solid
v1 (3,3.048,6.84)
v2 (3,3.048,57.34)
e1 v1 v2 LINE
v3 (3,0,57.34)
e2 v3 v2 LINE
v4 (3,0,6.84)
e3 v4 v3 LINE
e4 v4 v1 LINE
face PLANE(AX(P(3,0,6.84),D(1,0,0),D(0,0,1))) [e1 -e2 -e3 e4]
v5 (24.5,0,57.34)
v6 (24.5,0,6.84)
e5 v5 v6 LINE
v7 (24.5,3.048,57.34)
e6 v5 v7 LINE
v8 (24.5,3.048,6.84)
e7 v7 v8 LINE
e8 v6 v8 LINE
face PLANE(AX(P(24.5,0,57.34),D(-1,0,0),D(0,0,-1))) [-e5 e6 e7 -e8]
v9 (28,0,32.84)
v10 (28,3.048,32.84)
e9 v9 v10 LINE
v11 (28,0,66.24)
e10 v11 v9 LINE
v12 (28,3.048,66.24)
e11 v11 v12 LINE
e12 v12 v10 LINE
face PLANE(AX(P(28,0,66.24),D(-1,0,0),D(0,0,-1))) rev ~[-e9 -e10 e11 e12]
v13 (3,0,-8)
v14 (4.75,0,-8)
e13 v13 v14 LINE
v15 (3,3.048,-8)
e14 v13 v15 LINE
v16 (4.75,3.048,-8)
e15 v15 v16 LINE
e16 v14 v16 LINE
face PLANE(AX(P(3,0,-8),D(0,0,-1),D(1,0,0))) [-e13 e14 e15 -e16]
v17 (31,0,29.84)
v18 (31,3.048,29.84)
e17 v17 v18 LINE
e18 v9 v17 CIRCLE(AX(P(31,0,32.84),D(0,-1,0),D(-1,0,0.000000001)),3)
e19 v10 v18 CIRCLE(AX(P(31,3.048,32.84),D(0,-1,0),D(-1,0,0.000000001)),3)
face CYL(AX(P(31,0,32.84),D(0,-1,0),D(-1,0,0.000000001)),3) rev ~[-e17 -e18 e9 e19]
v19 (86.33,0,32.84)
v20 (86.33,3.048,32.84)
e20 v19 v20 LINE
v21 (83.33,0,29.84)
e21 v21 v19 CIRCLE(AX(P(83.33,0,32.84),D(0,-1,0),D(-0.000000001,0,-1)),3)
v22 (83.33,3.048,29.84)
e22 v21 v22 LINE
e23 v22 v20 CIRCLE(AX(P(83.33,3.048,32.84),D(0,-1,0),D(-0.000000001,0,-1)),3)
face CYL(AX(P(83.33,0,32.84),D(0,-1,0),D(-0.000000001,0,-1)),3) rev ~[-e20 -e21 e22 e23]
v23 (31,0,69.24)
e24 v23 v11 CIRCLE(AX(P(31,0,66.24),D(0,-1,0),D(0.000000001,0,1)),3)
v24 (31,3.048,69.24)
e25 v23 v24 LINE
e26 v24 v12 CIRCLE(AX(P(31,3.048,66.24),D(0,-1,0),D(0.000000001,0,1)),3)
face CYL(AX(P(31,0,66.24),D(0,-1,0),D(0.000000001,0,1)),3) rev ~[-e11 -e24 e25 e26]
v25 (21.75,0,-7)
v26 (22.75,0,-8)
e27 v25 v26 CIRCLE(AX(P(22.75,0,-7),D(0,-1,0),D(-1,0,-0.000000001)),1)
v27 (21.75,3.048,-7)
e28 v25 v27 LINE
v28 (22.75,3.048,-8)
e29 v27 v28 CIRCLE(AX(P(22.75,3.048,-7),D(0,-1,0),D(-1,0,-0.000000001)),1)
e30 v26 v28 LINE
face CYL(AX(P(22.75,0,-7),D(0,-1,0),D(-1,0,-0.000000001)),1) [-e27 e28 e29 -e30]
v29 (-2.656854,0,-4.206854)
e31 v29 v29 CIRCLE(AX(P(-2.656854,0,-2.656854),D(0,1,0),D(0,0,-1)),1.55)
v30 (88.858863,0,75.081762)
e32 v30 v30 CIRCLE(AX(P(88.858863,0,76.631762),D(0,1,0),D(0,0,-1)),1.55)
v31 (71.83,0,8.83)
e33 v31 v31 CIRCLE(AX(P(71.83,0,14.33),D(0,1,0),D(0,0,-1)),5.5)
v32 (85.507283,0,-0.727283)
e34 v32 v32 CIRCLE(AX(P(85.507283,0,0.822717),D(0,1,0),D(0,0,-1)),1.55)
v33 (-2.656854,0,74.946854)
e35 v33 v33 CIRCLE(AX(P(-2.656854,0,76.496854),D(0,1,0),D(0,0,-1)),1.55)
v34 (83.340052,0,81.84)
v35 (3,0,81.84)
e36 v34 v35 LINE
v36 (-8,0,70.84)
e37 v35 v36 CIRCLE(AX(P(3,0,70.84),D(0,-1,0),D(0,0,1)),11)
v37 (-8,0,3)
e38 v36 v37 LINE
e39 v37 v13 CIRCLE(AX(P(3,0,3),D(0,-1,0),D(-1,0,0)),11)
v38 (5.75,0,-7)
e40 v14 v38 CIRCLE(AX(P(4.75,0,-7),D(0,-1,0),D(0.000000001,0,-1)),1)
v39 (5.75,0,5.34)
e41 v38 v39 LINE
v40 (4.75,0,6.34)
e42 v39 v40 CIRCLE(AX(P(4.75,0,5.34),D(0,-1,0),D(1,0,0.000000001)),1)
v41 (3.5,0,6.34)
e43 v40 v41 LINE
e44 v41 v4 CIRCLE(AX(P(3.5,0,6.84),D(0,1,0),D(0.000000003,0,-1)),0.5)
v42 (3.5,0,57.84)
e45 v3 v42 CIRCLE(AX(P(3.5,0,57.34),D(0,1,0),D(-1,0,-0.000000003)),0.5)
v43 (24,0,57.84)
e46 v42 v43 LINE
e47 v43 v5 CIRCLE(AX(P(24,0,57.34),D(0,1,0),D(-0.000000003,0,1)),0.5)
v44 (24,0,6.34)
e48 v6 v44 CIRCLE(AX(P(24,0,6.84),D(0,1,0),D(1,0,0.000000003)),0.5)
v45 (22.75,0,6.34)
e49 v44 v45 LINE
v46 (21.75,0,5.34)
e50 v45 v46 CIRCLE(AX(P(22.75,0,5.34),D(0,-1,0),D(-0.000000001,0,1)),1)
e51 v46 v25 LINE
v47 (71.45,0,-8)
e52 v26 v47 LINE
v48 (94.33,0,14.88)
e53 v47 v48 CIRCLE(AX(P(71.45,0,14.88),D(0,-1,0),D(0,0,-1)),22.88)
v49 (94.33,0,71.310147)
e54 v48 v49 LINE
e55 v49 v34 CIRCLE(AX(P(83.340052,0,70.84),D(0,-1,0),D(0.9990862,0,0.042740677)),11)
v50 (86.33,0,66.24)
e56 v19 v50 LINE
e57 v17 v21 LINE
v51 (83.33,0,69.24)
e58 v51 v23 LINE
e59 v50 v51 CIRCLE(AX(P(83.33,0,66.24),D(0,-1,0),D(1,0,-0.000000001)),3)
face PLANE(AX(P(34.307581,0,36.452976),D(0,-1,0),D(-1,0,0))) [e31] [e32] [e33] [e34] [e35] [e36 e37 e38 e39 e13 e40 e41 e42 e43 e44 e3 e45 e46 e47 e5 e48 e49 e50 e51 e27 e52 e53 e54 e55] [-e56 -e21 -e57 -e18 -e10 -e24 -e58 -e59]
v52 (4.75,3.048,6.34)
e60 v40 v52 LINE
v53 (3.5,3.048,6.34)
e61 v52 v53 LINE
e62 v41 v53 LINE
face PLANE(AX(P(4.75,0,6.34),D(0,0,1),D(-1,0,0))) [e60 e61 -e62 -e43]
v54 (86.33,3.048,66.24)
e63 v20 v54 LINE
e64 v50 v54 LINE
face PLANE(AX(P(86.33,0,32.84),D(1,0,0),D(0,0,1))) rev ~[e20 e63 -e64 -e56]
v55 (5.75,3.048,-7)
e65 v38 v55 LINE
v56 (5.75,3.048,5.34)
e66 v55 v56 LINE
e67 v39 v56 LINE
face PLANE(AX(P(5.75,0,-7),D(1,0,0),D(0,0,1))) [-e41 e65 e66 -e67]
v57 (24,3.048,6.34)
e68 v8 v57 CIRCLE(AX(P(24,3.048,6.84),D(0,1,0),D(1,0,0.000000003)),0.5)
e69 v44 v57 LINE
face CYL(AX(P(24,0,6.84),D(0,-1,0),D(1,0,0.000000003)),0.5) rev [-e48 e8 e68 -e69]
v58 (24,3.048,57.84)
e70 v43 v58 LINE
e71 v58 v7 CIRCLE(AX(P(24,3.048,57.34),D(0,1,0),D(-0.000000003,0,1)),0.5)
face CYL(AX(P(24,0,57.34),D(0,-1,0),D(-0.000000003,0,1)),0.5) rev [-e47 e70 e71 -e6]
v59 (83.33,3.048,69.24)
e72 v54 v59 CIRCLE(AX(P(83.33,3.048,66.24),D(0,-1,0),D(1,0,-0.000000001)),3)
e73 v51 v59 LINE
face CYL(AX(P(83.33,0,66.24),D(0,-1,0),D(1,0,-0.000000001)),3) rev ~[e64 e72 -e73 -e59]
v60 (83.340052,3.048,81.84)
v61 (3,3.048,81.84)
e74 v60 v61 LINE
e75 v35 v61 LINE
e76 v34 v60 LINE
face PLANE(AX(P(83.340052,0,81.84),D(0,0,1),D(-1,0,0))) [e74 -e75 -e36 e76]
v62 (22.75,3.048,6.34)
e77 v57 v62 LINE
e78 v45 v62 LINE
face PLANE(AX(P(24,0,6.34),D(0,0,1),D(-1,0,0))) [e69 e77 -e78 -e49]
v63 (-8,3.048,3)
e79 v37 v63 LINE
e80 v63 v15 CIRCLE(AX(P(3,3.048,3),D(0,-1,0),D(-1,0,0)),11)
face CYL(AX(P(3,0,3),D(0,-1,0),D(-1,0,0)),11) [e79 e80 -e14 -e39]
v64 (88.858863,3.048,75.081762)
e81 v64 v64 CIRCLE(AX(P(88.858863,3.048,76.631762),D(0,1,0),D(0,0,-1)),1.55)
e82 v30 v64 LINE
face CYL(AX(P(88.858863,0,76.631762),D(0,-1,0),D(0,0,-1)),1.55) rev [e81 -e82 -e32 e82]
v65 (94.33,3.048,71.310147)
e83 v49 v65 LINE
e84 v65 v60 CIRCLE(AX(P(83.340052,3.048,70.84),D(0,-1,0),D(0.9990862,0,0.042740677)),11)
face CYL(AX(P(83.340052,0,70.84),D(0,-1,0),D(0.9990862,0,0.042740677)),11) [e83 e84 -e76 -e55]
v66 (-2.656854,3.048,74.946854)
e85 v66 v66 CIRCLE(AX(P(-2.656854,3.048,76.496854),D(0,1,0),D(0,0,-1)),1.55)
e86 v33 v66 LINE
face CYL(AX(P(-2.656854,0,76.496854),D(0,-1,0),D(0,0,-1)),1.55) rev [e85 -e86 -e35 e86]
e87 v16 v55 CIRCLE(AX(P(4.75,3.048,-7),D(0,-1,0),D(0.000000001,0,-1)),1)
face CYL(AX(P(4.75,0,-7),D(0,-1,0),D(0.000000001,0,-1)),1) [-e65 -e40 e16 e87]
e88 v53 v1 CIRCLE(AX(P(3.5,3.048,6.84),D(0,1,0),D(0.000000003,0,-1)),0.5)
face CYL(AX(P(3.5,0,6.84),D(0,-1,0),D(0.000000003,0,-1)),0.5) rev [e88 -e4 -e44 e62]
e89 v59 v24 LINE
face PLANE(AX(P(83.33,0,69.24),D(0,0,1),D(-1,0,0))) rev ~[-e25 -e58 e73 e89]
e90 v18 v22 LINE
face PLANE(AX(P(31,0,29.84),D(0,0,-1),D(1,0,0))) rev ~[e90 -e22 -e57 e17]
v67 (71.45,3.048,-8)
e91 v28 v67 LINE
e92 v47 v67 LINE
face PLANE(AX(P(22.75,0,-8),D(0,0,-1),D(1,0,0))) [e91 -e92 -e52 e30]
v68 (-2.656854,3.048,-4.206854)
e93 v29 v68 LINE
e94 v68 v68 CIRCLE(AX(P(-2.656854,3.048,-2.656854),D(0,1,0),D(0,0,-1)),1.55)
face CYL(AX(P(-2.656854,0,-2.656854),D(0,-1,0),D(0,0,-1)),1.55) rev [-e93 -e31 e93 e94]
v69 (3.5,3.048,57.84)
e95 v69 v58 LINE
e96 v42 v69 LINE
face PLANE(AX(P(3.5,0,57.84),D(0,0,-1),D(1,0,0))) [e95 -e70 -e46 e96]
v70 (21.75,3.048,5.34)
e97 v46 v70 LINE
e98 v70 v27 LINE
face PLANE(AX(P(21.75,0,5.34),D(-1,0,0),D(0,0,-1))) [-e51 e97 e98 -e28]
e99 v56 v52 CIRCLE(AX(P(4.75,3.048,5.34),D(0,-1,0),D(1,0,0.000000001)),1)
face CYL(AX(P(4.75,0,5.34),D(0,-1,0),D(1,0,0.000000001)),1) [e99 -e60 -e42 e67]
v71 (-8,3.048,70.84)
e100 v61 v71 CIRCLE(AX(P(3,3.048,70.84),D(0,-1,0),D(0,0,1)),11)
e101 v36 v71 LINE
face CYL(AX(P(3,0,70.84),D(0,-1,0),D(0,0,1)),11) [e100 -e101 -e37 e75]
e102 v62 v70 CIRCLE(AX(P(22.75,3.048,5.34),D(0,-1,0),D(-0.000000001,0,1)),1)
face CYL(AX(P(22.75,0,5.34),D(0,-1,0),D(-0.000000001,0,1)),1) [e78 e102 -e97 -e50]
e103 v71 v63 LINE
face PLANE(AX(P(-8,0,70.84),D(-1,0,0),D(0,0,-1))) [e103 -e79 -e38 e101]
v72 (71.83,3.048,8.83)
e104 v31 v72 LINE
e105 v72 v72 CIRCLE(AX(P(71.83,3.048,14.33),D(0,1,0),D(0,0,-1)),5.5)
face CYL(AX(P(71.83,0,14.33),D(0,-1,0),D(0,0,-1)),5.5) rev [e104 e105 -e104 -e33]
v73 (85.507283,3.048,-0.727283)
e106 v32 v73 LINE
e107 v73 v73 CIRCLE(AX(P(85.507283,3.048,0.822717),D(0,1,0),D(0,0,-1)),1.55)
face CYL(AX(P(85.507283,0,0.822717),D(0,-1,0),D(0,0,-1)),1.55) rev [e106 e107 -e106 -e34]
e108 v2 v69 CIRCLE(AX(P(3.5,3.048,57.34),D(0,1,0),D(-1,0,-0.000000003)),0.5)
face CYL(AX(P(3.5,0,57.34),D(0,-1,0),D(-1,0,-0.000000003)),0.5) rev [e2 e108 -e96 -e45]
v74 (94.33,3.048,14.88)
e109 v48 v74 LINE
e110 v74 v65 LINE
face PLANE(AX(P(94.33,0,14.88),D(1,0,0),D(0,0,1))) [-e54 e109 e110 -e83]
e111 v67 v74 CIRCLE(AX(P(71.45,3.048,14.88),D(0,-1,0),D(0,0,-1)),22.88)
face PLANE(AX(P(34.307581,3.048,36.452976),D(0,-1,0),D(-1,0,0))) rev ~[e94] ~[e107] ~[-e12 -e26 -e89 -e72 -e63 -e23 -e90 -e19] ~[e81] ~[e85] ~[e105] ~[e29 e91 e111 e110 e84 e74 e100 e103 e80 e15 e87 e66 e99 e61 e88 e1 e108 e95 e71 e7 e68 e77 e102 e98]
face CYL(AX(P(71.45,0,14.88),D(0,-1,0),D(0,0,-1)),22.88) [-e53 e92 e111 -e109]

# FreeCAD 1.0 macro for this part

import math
import FreeCAD as App
import Part
import Sketcher
Q = App.Units.Quantity

doc = App.newDocument("Part")
body = doc.addObject("PartDesign::Body", "Body")

# Sketch on XZ plane
sketch1 = doc.addObject("Sketcher::SketchObject", "Sketch")
body.addObject(sketch1)
sketch1.AttachmentSupport = (doc.XZ_Plane, [""])
sketch1.MapMode = "FlatFace"
sketch1.addGeometry(Part.LineSegment(App.Vector(3, 57.34, 0), App.Vector(3, 6.84, 0)), False)
sketch1.addGeometry(Part.ArcOfCircle(Part.Circle(App.Vector(3.5, 6.84, 0), App.Vector(0, 0, 1), 0.5), math.radians(180), math.radians(270)), False)
sketch1.addGeometry(Part.LineSegment(App.Vector(3.5, 6.34, 0), App.Vector(4.75, 6.34, 0)), False)
sketch1.addGeometry(Part.ArcOfCircle(Part.Circle(App.Vector(4.75, 5.34, 0), App.Vector(0, 0, 1), 1), math.radians(0), math.radians(90)), False)
sketch1.addGeometry(Part.LineSegment(App.Vector(5.75, 5.34, 0), App.Vector(5.75, -7, 0)), False)
sketch1.addGeometry(Part.ArcOfCircle(Part.Circle(App.Vector(4.75, -7, 0), App.Vector(0, 0, 1), 1), math.radians(-90), math.radians(0)), False)
sketch1.addGeometry(Part.LineSegment(App.Vector(4.75, -8, 0), App.Vector(3, -8, 0)), False)
sketch1.addGeometry(Part.ArcOfCircle(Part.Circle(App.Vector(3, 3, 0), App.Vector(0, 0, 1), 11), math.radians(180), math.radians(270)), False)
sketch1.addGeometry(Part.LineSegment(App.Vector(-8, 3, 0), App.Vector(-8, 70.84, 0)), False)
sketch1.addGeometry(Part.ArcOfCircle(Part.Circle(App.Vector(3, 70.84, 0), App.Vector(0, 0, 1), 11), math.radians(90), math.radians(180)), False)
sketch1.addGeometry(Part.LineSegment(App.Vector(3, 81.84, 0), App.Vector(83.340052, 81.84, 0)), False)
sketch1.addGeometry(Part.ArcOfCircle(Part.Circle(App.Vector(83.340052, 70.84, 0), App.Vector(0, 0, 1), 11), math.radians(2.449607), math.radians(90)), False)
sketch1.addGeometry(Part.LineSegment(App.Vector(94.33, 71.310147, 0), App.Vector(94.33, 14.88, 0)), False)
sketch1.addGeometry(Part.ArcOfCircle(Part.Circle(App.Vector(71.45, 14.88, 0), App.Vector(0, 0, 1), 22.88), math.radians(-90), math.radians(0)), False)
sketch1.addGeometry(Part.LineSegment(App.Vector(71.45, -8, 0), App.Vector(22.75, -8, 0)), False)
sketch1.addGeometry(Part.ArcOfCircle(Part.Circle(App.Vector(22.75, -7, 0), App.Vector(0, 0, 1), 1), math.radians(-180), math.radians(-90)), False)
sketch1.addGeometry(Part.LineSegment(App.Vector(21.75, -7, 0), App.Vector(21.75, 5.34, 0)), False)
sketch1.addGeometry(Part.ArcOfCircle(Part.Circle(App.Vector(22.75, 5.34, 0), App.Vector(0, 0, 1), 1), math.radians(90), math.radians(180)), False)
sketch1.addGeometry(Part.LineSegment(App.Vector(22.75, 6.34, 0), App.Vector(24, 6.34, 0)), False)
sketch1.addGeometry(Part.ArcOfCircle(Part.Circle(App.Vector(24, 6.84, 0), App.Vector(0, 0, 1), 0.5), math.radians(-90), math.radians(0)), False)
sketch1.addGeometry(Part.LineSegment(App.Vector(24.5, 6.84, 0), App.Vector(24.5, 57.34, 0)), False)
sketch1.addGeometry(Part.ArcOfCircle(Part.Circle(App.Vector(24, 57.34, 0), App.Vector(0, 0, 1), 0.5), math.radians(0), math.radians(90)), False)
sketch1.addGeometry(Part.LineSegment(App.Vector(24, 57.84, 0), App.Vector(3.5, 57.84, 0)), False)
sketch1.addGeometry(Part.ArcOfCircle(Part.Circle(App.Vector(3.5, 57.34, 0), App.Vector(0, 0, 1), 0.5), math.radians(90), math.radians(180)), False)
sketch1.addGeometry(Part.Circle(App.Vector(88.858863, 76.631762, 0), App.Vector(0, 0, 1), 1.55), False)
sketch1.addGeometry(Part.LineSegment(App.Vector(28, 66.24, 0), App.Vector(28, 32.84, 0)), False)
sketch1.addGeometry(Part.ArcOfCircle(Part.Circle(App.Vector(31, 32.84, 0), App.Vector(0, 0, 1), 3), math.radians(180), math.radians(270)), False)
sketch1.addGeometry(Part.LineSegment(App.Vector(31, 29.84, 0), App.Vector(83.33, 29.84, 0)), False)
sketch1.addGeometry(Part.ArcOfCircle(Part.Circle(App.Vector(83.33, 32.84, 0), App.Vector(0, 0, 1), 3), math.radians(-90), math.radians(0)), False)
sketch1.addGeometry(Part.LineSegment(App.Vector(86.33, 32.84, 0), App.Vector(86.33, 66.24, 0)), False)
sketch1.addGeometry(Part.ArcOfCircle(Part.Circle(App.Vector(83.33, 66.24, 0), App.Vector(0, 0, 1), 3), math.radians(0), math.radians(90)), False)
sketch1.addGeometry(Part.LineSegment(App.Vector(83.33, 69.24, 0), App.Vector(31, 69.24, 0)), False)
sketch1.addGeometry(Part.ArcOfCircle(Part.Circle(App.Vector(31, 66.24, 0), App.Vector(0, 0, 1), 3), math.radians(90), math.radians(180)), False)
sketch1.addGeometry(Part.Circle(App.Vector(-2.656854, 76.496854, 0), App.Vector(0, 0, 1), 1.55), False)
sketch1.addGeometry(Part.Circle(App.Vector(71.83, 14.33, 0), App.Vector(0, 0, 1), 5.5), False)
sketch1.addGeometry(Part.Circle(App.Vector(85.507283, 0.822717, 0), App.Vector(0, 0, 1), 1.55), False)
sketch1.addGeometry(Part.Circle(App.Vector(-2.656854, -2.656854, 0), App.Vector(0, 0, 1), 1.55), False)
sketch1.addConstraint(Sketcher.Constraint("Tangent", 0, 2, 1, 1))
sketch1.addConstraint(Sketcher.Constraint("Tangent", 1, 2, 2, 1))
sketch1.addConstraint(Sketcher.Constraint("Tangent", 2, 2, 3, 2))
sketch1.addConstraint(Sketcher.Constraint("Tangent", 3, 1, 4, 1))
sketch1.addConstraint(Sketcher.Constraint("Tangent", 4, 2, 5, 2))
sketch1.addConstraint(Sketcher.Constraint("Tangent", 5, 1, 6, 1))
sketch1.addConstraint(Sketcher.Constraint("Tangent", 6, 2, 7, 2))
sketch1.addConstraint(Sketcher.Constraint("Tangent", 7, 1, 8, 1))
sketch1.addConstraint(Sketcher.Constraint("Tangent", 8, 2, 9, 2))
sketch1.addConstraint(Sketcher.Constraint("Tangent", 9, 1, 10, 1))
sketch1.addConstraint(Sketcher.Constraint("Tangent", 10, 2, 11, 2))
sketch1.addConstraint(Sketcher.Constraint("Coincident", 11, 1, 12, 1))
sketch1.addConstraint(Sketcher.Constraint("Tangent", 12, 2, 13, 2))
sketch1.addConstraint(Sketcher.Constraint("Tangent", 13, 1, 14, 1))
sketch1.addConstraint(Sketcher.Constraint("Tangent", 14, 2, 15, 2))
sketch1.addConstraint(Sketcher.Constraint("Tangent", 15, 1, 16, 1))
sketch1.addConstraint(Sketcher.Constraint("Tangent", 16, 2, 17, 2))
sketch1.addConstraint(Sketcher.Constraint("Tangent", 17, 1, 18, 1))
sketch1.addConstraint(Sketcher.Constraint("Tangent", 18, 2, 19, 1))
sketch1.addConstraint(Sketcher.Constraint("Tangent", 19, 2, 20, 1))
sketch1.addConstraint(Sketcher.Constraint("Tangent", 20, 2, 21, 1))
sketch1.addConstraint(Sketcher.Constraint("Tangent", 21, 2, 22, 1))
sketch1.addConstraint(Sketcher.Constraint("Tangent", 22, 2, 23, 1))
sketch1.addConstraint(Sketcher.Constraint("Tangent", 23, 2, 0, 1))
sketch1.addConstraint(Sketcher.Constraint("Tangent", 25, 2, 26, 1))
sketch1.addConstraint(Sketcher.Constraint("Tangent", 26, 2, 27, 1))
sketch1.addConstraint(Sketcher.Constraint("Tangent", 27, 2, 28, 1))
sketch1.addConstraint(Sketcher.Constraint("Tangent", 28, 2, 29, 1))
sketch1.addConstraint(Sketcher.Constraint("Tangent", 29, 2, 30, 1))
sketch1.addConstraint(Sketcher.Constraint("Tangent", 30, 2, 31, 1))
sketch1.addConstraint(Sketcher.Constraint("Tangent", 31, 2, 32, 1))
sketch1.addConstraint(Sketcher.Constraint("Tangent", 32, 2, 25, 1))
sketch1.addConstraint(Sketcher.Constraint("Vertical", 0))
sketch1.addConstraint(Sketcher.Constraint("Horizontal", 2))
sketch1.addConstraint(Sketcher.Constraint("Vertical", 4))
sketch1.addConstraint(Sketcher.Constraint("Horizontal", 6))
sketch1.addConstraint(Sketcher.Constraint("Vertical", 8))
sketch1.addConstraint(Sketcher.Constraint("Horizontal", 10))
sketch1.addConstraint(Sketcher.Constraint("Vertical", 12))
sketch1.addConstraint(Sketcher.Constraint("Horizontal", 14))
sketch1.addConstraint(Sketcher.Constraint("Vertical", 16))
sketch1.addConstraint(Sketcher.Constraint("Horizontal", 18))
sketch1.addConstraint(Sketcher.Constraint("Vertical", 20))
sketch1.addConstraint(Sketcher.Constraint("Horizontal", 22))
sketch1.addConstraint(Sketcher.Constraint("Vertical", 25))
sketch1.addConstraint(Sketcher.Constraint("Horizontal", 27))
sketch1.addConstraint(Sketcher.Constraint("Vertical", 29))
sketch1.addConstraint(Sketcher.Constraint("Horizontal", 31))
sketch1.addConstraint(Sketcher.Constraint("Equal", 3, 5))
sketch1.addConstraint(Sketcher.Constraint("Equal", 7, 9))
sketch1.addConstraint(Sketcher.Constraint("Equal", 9, 11))
sketch1.addConstraint(Sketcher.Constraint("Equal", 5, 15))
sketch1.addConstraint(Sketcher.Constraint("Equal", 15, 17))
sketch1.addConstraint(Sketcher.Constraint("Equal", 1, 19))
sketch1.addConstraint(Sketcher.Constraint("Equal", 19, 21))
sketch1.addConstraint(Sketcher.Constraint("Equal", 21, 23))
sketch1.addConstraint(Sketcher.Constraint("Equal", 26, 28))
sketch1.addConstraint(Sketcher.Constraint("Equal", 28, 30))
sketch1.addConstraint(Sketcher.Constraint("Equal", 30, 32))
sketch1.addConstraint(Sketcher.Constraint("Equal", 24, 33))
sketch1.addConstraint(Sketcher.Constraint("Equal", 33, 35))
sketch1.addConstraint(Sketcher.Constraint("Equal", 35, 36))
sketch1.addConstraint(Sketcher.Constraint("Horizontal", 5, 3, 15, 3))
sketch1.addConstraint(Sketcher.Constraint("Horizontal", 3, 3, 17, 3))
sketch1.addConstraint(Sketcher.Constraint("Vertical", 33, 3, 36, 3))
sketch1.addConstraint(Sketcher.Constraint("Vertical", 9, 3, 0, 2))
sketch1.addConstraint(Sketcher.Constraint("Equal", 2, 18))
sketch1.addConstraint(Sketcher.Constraint("Diameter", 34, Q("11 mm")))
sketch1.addConstraint(Sketcher.Constraint("Radius", 3, Q("1 mm")))
sketch1.addConstraint(Sketcher.Constraint("Radius", 7, Q("11 mm")))
sketch1.addConstraint(Sketcher.Constraint("Radius", 26, Q("3 mm")))
sketch1.addConstraint(Sketcher.Constraint("Diameter", 24, Q("3.1 mm")))
sketch1.addConstraint(Sketcher.Constraint("Radius", 1, Q("0.5 mm")))
sketch1.addConstraint(Sketcher.Constraint("Radius", 13, Q("22.88 mm")))
sketch1.addConstraint(Sketcher.Constraint("DistanceX", 14, 2, 14, 1, Q("48.7 mm")))
sketch1.addConstraint(Sketcher.Constraint("DistanceX", 22, 2, 22, 1, Q("20.5 mm")))
sketch1.addConstraint(Sketcher.Constraint("DistanceY", 0, 2, 0, 1, Q("50.5 mm")))
sketch1.addConstraint(Sketcher.Constraint("DistanceY", 25, 2, 25, 1, Q("33.4 mm")))
sketch1.addConstraint(Sketcher.Constraint("DistanceY", 5, 3, -1, 1, Q("7 mm")))
sketch1.addConstraint(Sketcher.Constraint("DistanceX", -1, 1, 7, 3, Q("3 mm")))
sketch1.addConstraint(Sketcher.Constraint("DistanceX", -1, 1, 26, 3, Q("31 mm")))
sketch1.addConstraint(Sketcher.Constraint("DistanceY", 1, 3, 9, 3, Q("64 mm")))
sketch1.addConstraint(Sketcher.Constraint("DistanceX", 5, 3, 15, 3, Q("18 mm")))
sketch1.addConstraint(Sketcher.Constraint("DistanceY", 19, 3, 26, 3, Q("26 mm")))
sketch1.addConstraint(Sketcher.Constraint("DistanceX", 30, 3, 11, 1, Q("11 mm")))
sketch1.addConstraint(Sketcher.Constraint("DistanceY", 4, 2, 4, 1, Q("12.34 mm")))
sketch1.addConstraint(Sketcher.Constraint("DistanceX", 34, 3, 28, 3, Q("11.5 mm")))
sketch1.addConstraint(Sketcher.Constraint("DistanceY", -1, 1, 34, 3, Q("14.33 mm")))
sketch1.addConstraint(Sketcher.Constraint("DistanceX", 10, 1, 10, 2, Q("80.340052 mm")))
sketch1.addConstraint(Sketcher.Constraint("DistanceY", -1, 1, 24, 3, Q("76.631762 mm")))
sketch1.addConstraint(Sketcher.Constraint("DistanceX", 11, 3, 24, 3, Q("5.518811 mm")))
sketch1.addConstraint(Sketcher.Constraint("DistanceX", 33, 3, -1, 1, Q("2.656854 mm")))
sketch1.addConstraint(Sketcher.Constraint("DistanceY", -1, 1, 33, 3, Q("76.496854 mm")))
sketch1.addConstraint(Sketcher.Constraint("DistanceX", -1, 1, 35, 3, Q("85.507283 mm")))
sketch1.addConstraint(Sketcher.Constraint("DistanceY", -1, 1, 35, 3, Q("0.822717 mm")))
sketch1.addConstraint(Sketcher.Constraint("DistanceY", 36, 3, -1, 1, Q("2.656854 mm")))
pad1 = doc.addObject("PartDesign::Pad", "Pad")
body.addObject(pad1)
pad1.Profile = sketch1
pad1.Length = 3.048
pad1.Reversed = True

doc.recompute()
